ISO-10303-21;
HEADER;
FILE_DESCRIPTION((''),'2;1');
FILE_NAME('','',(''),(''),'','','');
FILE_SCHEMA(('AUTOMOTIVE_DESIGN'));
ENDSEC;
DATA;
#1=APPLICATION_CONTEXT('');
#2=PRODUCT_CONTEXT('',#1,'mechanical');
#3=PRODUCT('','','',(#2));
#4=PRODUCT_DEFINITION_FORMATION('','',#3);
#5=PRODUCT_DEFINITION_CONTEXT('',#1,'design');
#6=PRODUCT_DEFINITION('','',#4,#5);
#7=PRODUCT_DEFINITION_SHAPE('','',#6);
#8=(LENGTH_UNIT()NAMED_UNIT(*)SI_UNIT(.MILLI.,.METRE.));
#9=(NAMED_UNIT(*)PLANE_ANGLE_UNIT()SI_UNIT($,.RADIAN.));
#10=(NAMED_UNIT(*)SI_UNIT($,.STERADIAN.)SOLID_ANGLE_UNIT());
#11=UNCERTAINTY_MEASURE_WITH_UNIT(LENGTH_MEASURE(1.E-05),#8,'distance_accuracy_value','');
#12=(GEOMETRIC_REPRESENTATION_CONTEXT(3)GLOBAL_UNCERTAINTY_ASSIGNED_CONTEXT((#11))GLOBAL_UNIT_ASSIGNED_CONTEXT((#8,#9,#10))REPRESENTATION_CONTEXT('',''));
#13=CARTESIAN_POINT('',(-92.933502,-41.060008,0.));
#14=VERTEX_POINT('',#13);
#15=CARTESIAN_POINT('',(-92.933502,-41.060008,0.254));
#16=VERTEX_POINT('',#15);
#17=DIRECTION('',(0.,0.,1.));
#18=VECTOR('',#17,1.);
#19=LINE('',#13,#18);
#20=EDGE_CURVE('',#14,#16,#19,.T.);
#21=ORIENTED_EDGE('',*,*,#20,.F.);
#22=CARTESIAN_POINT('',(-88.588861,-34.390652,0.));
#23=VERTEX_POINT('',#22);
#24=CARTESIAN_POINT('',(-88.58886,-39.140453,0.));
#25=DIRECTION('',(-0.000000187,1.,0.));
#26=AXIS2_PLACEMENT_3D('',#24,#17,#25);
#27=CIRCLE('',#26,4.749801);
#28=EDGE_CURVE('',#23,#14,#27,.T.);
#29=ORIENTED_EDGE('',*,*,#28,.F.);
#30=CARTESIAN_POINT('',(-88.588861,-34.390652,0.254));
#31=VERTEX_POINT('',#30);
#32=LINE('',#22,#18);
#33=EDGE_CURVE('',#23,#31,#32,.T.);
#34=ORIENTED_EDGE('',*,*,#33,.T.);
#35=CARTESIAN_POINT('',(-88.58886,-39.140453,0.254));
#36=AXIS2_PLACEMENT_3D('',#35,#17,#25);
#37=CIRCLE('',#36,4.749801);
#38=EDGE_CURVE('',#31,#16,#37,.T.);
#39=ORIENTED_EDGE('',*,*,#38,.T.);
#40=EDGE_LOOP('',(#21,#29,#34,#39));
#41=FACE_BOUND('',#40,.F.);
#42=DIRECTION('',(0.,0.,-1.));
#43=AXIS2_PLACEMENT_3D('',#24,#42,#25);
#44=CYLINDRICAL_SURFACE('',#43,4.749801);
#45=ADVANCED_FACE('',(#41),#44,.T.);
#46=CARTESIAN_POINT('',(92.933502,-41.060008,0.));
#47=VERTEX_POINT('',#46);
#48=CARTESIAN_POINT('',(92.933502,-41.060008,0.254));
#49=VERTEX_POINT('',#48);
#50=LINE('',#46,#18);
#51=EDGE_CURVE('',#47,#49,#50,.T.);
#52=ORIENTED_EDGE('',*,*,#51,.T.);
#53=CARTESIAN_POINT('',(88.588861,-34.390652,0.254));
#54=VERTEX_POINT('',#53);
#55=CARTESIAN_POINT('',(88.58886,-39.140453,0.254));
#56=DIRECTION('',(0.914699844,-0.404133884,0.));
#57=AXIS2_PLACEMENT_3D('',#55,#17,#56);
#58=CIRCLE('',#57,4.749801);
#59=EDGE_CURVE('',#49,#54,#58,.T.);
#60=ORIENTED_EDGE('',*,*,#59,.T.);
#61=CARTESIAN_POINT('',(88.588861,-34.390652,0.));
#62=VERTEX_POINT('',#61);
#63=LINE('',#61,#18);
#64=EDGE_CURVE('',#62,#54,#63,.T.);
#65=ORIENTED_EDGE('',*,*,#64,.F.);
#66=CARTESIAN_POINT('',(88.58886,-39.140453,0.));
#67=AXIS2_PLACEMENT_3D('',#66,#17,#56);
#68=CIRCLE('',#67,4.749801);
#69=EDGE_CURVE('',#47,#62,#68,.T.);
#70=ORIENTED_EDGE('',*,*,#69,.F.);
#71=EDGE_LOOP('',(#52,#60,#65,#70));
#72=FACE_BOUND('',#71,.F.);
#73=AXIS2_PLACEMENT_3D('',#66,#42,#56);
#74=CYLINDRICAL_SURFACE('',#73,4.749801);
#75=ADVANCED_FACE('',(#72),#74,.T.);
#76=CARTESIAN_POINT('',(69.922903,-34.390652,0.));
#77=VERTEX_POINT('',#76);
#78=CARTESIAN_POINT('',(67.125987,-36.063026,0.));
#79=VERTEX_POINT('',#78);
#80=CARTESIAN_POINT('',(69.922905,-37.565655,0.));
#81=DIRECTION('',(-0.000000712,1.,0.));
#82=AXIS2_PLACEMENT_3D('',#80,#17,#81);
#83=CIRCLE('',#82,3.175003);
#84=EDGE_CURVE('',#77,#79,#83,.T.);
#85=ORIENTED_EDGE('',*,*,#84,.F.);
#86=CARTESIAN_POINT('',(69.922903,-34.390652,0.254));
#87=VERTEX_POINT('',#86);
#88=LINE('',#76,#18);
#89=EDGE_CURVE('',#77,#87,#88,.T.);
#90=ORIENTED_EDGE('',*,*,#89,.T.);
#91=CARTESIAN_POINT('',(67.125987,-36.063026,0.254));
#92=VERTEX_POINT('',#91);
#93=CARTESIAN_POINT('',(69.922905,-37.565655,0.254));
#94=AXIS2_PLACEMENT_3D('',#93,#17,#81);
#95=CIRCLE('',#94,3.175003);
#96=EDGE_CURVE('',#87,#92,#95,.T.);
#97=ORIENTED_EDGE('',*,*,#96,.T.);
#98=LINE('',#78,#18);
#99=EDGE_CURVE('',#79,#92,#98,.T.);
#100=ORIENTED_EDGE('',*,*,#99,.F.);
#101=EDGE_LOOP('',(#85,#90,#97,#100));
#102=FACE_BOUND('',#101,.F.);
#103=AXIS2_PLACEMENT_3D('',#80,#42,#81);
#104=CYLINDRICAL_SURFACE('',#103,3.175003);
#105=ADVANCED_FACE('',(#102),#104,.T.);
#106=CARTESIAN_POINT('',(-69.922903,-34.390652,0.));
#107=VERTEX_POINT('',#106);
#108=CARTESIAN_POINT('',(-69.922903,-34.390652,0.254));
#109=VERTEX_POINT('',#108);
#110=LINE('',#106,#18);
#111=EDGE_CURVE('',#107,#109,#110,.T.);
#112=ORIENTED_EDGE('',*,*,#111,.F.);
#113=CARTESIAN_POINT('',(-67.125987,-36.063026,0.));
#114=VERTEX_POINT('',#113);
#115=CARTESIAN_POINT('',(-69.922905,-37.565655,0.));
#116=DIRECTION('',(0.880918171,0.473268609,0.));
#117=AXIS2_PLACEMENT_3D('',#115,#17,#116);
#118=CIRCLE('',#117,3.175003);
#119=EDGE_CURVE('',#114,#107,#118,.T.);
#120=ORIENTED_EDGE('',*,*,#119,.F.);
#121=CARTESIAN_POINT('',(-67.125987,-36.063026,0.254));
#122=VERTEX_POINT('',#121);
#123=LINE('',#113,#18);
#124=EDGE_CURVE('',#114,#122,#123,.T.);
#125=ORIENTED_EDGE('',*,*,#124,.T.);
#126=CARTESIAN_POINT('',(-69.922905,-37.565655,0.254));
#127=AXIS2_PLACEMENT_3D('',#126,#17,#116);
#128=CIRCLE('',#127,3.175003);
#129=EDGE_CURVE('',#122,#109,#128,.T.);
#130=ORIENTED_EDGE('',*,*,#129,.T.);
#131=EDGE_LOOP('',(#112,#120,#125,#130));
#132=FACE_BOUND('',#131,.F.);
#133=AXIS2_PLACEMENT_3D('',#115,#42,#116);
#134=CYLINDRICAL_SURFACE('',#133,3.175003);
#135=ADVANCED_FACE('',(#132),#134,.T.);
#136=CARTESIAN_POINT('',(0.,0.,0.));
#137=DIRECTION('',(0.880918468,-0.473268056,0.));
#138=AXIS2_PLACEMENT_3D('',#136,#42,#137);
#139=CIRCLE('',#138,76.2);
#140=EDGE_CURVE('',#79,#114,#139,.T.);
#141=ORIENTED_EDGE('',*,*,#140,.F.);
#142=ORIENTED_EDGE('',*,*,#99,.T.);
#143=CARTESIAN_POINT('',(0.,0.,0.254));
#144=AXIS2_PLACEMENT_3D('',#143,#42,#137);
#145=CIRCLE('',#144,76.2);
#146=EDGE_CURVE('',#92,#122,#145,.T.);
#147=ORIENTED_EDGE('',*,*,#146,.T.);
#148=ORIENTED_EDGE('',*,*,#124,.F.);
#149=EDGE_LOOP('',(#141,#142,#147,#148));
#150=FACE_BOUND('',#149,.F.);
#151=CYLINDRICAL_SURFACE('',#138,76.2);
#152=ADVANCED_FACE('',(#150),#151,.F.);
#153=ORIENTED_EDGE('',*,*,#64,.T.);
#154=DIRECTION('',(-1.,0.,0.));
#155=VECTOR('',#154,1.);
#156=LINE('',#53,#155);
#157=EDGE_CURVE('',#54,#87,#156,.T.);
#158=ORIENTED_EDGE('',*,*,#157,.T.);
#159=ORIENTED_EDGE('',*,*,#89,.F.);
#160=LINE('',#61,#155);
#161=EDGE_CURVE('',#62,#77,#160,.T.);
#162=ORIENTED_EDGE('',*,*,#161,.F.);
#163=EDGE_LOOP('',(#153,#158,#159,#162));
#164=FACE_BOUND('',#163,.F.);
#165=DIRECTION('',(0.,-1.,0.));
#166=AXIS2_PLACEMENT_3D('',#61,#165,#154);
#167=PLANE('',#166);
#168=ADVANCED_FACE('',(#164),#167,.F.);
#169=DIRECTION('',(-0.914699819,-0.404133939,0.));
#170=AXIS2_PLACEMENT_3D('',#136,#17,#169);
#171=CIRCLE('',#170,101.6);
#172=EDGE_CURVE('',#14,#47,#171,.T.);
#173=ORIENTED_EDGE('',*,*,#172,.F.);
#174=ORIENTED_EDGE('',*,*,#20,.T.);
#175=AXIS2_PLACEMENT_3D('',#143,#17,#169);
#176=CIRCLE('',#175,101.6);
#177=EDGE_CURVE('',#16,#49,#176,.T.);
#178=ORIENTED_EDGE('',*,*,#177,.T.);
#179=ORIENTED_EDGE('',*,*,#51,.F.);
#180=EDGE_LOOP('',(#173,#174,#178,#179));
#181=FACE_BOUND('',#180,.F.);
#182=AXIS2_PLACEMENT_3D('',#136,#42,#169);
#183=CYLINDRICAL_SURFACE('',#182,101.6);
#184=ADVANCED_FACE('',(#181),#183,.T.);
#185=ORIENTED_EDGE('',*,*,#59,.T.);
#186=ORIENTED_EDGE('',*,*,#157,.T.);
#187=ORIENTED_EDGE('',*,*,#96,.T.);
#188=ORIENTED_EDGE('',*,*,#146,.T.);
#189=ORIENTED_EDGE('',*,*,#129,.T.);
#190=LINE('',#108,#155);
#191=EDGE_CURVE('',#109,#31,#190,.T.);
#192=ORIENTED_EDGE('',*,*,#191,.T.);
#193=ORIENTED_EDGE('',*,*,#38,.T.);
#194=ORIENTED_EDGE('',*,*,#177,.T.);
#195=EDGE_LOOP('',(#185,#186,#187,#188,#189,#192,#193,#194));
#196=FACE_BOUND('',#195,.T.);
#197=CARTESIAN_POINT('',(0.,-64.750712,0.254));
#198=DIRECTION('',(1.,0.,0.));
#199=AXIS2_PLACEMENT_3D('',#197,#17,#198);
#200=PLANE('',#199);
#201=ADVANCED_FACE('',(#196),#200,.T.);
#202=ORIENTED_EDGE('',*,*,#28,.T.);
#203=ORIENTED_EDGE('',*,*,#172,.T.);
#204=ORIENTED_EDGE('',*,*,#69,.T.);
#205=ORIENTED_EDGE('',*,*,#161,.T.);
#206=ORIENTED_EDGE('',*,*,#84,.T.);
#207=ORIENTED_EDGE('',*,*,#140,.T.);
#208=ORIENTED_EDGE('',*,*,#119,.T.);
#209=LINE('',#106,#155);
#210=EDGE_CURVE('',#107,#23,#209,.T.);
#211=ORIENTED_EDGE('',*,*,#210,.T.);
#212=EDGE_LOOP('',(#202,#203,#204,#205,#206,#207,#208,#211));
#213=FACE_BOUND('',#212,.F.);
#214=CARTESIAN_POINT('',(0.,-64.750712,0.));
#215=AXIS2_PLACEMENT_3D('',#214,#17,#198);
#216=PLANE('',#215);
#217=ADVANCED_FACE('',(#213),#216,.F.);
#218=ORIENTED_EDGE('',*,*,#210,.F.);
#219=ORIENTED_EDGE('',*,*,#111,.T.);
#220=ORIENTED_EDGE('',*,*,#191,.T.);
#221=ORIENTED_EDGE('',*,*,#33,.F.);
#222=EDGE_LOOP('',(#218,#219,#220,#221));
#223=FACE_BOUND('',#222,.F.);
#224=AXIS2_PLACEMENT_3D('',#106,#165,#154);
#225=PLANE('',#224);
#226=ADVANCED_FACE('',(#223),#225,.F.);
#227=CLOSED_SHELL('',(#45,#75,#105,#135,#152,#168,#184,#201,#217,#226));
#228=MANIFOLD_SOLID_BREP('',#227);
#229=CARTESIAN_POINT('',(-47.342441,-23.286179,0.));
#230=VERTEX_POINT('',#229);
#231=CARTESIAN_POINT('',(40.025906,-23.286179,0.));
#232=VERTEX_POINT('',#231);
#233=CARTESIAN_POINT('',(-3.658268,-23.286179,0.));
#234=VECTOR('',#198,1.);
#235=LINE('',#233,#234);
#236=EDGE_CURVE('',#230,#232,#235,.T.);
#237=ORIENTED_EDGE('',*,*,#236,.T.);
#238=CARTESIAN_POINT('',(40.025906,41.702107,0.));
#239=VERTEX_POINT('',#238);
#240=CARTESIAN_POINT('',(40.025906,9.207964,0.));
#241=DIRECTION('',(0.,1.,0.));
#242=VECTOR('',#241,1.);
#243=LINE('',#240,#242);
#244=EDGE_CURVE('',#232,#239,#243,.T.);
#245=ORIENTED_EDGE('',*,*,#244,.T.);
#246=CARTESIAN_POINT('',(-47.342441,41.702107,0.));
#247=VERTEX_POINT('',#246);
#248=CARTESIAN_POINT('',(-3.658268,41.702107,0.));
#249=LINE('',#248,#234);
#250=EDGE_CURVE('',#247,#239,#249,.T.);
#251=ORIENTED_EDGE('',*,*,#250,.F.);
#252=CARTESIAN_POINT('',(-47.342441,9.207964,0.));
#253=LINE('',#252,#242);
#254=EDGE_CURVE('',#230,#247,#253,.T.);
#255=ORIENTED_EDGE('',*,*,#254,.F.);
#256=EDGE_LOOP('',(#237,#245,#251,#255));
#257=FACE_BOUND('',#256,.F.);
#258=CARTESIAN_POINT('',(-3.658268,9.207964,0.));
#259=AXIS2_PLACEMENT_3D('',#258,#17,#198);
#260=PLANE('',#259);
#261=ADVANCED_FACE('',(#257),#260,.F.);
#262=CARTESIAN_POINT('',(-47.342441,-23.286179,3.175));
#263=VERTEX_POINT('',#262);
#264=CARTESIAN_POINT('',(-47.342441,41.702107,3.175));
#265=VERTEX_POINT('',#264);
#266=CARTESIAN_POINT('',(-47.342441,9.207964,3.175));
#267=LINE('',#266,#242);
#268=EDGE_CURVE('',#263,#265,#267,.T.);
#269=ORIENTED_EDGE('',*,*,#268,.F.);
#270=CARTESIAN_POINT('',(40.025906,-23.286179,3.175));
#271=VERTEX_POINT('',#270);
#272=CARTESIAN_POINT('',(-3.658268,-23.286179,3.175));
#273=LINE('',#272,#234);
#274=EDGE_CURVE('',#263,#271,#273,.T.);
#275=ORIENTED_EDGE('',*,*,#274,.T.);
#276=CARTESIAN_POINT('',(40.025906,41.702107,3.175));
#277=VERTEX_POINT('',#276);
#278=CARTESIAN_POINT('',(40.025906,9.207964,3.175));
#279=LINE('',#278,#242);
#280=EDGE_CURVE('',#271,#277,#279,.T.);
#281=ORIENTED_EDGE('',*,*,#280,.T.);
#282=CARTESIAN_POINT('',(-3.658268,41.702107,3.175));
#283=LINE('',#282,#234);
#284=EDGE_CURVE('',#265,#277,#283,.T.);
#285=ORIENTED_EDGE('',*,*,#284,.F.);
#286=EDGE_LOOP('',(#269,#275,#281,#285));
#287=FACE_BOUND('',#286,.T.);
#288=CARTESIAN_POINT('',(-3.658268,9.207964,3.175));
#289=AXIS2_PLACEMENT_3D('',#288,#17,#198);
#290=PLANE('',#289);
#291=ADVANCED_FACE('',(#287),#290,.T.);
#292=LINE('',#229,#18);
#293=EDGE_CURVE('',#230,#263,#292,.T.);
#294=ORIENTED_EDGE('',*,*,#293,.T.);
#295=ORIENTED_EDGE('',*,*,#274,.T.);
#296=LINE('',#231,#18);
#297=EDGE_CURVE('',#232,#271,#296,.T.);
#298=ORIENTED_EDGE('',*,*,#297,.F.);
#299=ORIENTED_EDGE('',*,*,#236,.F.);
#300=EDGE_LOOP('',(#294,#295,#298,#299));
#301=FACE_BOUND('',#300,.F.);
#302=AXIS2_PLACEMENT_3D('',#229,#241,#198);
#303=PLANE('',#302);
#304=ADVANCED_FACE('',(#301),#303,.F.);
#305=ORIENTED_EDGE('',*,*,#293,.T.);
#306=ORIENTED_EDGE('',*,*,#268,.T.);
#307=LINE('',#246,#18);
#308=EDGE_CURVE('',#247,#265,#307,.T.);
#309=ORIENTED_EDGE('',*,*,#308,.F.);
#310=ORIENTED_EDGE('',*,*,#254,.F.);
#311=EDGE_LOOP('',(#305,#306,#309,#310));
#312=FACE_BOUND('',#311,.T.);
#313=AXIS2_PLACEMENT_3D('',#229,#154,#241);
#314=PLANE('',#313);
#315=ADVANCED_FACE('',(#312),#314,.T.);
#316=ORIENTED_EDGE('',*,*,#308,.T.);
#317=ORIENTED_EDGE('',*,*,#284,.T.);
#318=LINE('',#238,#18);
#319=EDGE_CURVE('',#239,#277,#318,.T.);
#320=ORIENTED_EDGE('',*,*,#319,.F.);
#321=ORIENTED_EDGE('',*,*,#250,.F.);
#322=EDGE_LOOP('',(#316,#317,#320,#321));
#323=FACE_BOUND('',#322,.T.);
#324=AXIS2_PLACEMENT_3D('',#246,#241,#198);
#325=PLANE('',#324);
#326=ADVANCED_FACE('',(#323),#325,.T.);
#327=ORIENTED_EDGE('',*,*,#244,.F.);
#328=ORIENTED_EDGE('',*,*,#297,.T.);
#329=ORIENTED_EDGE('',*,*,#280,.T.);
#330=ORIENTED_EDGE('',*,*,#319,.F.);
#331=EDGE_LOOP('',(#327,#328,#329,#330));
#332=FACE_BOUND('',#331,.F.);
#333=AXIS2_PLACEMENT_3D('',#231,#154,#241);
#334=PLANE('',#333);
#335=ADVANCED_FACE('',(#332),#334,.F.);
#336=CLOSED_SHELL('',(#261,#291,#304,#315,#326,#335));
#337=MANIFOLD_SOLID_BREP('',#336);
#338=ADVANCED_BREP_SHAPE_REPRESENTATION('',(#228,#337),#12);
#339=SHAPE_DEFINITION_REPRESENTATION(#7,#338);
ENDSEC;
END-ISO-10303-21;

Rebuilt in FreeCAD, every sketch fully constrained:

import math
import FreeCAD as App
import Part
import Sketcher
Q = App.Units.Quantity


def add_polygon(sketch, points):
    """Adds a closed chain of lines whose ends are joined by coincident constraints."""
    first, n = sketch.GeometryCount, len(points)
    for a, b in zip(points, points[1:] + points[:1]):
        sketch.addGeometry(Part.LineSegment(App.Vector(*a, 0), App.Vector(*b, 0)), False)
    for i in range(n):
        sketch.addConstraint(Sketcher.Constraint("Coincident", first + i, 2, first + (i + 1) % n, 1))

doc = App.newDocument("Part")
params = doc.addObject("Spreadsheet::Sheet", "Params")
for row, (alias, value) in enumerate([
    ("sketch1_radius", "4 in"),
    ("sketch1_radius2", "3 in"),
    ("sketch1_radius3", "0.187 in"),
    ("sketch1_radius4", "0.1250001 in"),
    ("pad1_length", "0.01 in"),
    ("pad2_length", "0.125 in"),
], start=1):
    params.set(f"A{row}", alias)
    params.set(f"B{row}", "=" + value)
    params.setAlias(f"B{row}", alias)

body = doc.addObject("PartDesign::Body", "Body")

# Sketch on XY plane
sketch1 = body.newObject("Sketcher::SketchObject", "Sketch")
sketch1.AttachmentSupport = (doc.getObject("XY_Plane"), [""])
sketch1.MapMode = "FlatFace"
sketch1.addGeometry([
    Part.ArcOfCircle(Part.Circle(App.Vector(-88.6, -39.1, 0), App.Vector(0, 0, 1), 4.7), math.radians(90), math.radians(204)),  # 0
    Part.ArcOfCircle(Part.Circle(App.Vector(0, 0, 0), App.Vector(0, 0, 1), 101.6), math.radians(-156), math.radians(-24)),  # 1
    Part.ArcOfCircle(Part.Circle(App.Vector(88.6, -39.1, 0), App.Vector(0, 0, 1), 4.7), math.radians(-24), math.radians(90)),  # 2
    Part.LineSegment(App.Vector(88.6, -34.4, 0), App.Vector(69.9, -34.4, 0)),  # 3
    Part.ArcOfCircle(Part.Circle(App.Vector(69.9, -37.6, 0), App.Vector(0, 0, 1), 3.2), math.radians(90), math.radians(152)),  # 4
    Part.ArcOfCircle(Part.Circle(App.Vector(0, 0, 0), App.Vector(0, 0, 1), 76.2), math.radians(-152), math.radians(-28)),  # 5
    Part.ArcOfCircle(Part.Circle(App.Vector(-69.9, -37.6, 0), App.Vector(0, 0, 1), 3.2), math.radians(28), math.radians(90)),  # 6
    Part.LineSegment(App.Vector(-69.9, -34.4, 0), App.Vector(-88.6, -34.4, 0)),  # 7
], False)
sketch1.addConstraint([
    Sketcher.Constraint("Tangent", 0, 2, 1, 1),
    Sketcher.Constraint("Tangent", 1, 2, 2, 1),
    Sketcher.Constraint("Tangent", 2, 2, 3, 1),
    Sketcher.Constraint("Tangent", 3, 2, 4, 1),
    Sketcher.Constraint("Tangent", 4, 2, 5, 2),
    Sketcher.Constraint("Tangent", 5, 1, 6, 1),
    Sketcher.Constraint("Tangent", 6, 2, 7, 1),
    Sketcher.Constraint("Tangent", 7, 2, 0, 1),
    Sketcher.Constraint("Horizontal", 3),
    Sketcher.Constraint("Horizontal", 7),
    Sketcher.Constraint("Coincident", 1, 3, -1, 1),
    Sketcher.Constraint("Coincident", 5, 3, -1, 1),
    Sketcher.Constraint("Equal", 0, 2),
    Sketcher.Constraint("Equal", 4, 6),
    Sketcher.Constraint("Horizontal", 0, 3, 2, 3),
    Sketcher.Constraint("Radius", 1, Q("4 in")),
    Sketcher.Constraint("Radius", 5, Q("3 in")),
    Sketcher.Constraint("Radius", 0, Q("0.187 in")),
    Sketcher.Constraint("Radius", 4, Q("0.1250001 in")),
    Sketcher.Constraint("DistanceX", 0, 2, -1, 1, 92.933502),
])
sketch1.setExpression("Constraints[15]", "Params.sketch1_radius")
sketch1.setExpression("Constraints[16]", "Params.sketch1_radius2")
sketch1.setExpression("Constraints[17]", "Params.sketch1_radius3")
sketch1.setExpression("Constraints[18]", "Params.sketch1_radius4")
pad1 = body.newObject("PartDesign::Pad", "Pad")
pad1.Profile = sketch1
pad1.setExpression("Length", "Params.pad1_length")
body2 = doc.addObject("PartDesign::Body", "Body001")

# Sketch on XY plane
sketch2 = body2.newObject("Sketcher::SketchObject", "Sketch001")
sketch2.AttachmentSupport = (doc.getObject("XY_Plane001"), [""])
sketch2.MapMode = "FlatFace"
add_polygon(sketch2, [(-47, 42), (-47, -23), (40, -23), (40, 42)])  # lines 0-3
sketch2.addConstraint([
    Sketcher.Constraint("Vertical", 0),
    Sketcher.Constraint("Horizontal", 1),
    Sketcher.Constraint("Vertical", 2),
    Sketcher.Constraint("Horizontal", 3),
    Sketcher.Constraint("DistanceX", 1, 1, 1, 2, 87.368347),
    Sketcher.Constraint("DistanceY", 0, 2, 0, 1, 64.988286),
    Sketcher.Constraint("DistanceX", 0, 2, -1, 1, 47.342441),
    Sketcher.Constraint("DistanceY", 0, 2, -1, 1, 23.286179),
])
pad2 = body2.newObject("PartDesign::Pad", "Pad001")
pad2.Profile = sketch2
pad2.setExpression("Length", "Params.pad2_length")

doc.recompute()
